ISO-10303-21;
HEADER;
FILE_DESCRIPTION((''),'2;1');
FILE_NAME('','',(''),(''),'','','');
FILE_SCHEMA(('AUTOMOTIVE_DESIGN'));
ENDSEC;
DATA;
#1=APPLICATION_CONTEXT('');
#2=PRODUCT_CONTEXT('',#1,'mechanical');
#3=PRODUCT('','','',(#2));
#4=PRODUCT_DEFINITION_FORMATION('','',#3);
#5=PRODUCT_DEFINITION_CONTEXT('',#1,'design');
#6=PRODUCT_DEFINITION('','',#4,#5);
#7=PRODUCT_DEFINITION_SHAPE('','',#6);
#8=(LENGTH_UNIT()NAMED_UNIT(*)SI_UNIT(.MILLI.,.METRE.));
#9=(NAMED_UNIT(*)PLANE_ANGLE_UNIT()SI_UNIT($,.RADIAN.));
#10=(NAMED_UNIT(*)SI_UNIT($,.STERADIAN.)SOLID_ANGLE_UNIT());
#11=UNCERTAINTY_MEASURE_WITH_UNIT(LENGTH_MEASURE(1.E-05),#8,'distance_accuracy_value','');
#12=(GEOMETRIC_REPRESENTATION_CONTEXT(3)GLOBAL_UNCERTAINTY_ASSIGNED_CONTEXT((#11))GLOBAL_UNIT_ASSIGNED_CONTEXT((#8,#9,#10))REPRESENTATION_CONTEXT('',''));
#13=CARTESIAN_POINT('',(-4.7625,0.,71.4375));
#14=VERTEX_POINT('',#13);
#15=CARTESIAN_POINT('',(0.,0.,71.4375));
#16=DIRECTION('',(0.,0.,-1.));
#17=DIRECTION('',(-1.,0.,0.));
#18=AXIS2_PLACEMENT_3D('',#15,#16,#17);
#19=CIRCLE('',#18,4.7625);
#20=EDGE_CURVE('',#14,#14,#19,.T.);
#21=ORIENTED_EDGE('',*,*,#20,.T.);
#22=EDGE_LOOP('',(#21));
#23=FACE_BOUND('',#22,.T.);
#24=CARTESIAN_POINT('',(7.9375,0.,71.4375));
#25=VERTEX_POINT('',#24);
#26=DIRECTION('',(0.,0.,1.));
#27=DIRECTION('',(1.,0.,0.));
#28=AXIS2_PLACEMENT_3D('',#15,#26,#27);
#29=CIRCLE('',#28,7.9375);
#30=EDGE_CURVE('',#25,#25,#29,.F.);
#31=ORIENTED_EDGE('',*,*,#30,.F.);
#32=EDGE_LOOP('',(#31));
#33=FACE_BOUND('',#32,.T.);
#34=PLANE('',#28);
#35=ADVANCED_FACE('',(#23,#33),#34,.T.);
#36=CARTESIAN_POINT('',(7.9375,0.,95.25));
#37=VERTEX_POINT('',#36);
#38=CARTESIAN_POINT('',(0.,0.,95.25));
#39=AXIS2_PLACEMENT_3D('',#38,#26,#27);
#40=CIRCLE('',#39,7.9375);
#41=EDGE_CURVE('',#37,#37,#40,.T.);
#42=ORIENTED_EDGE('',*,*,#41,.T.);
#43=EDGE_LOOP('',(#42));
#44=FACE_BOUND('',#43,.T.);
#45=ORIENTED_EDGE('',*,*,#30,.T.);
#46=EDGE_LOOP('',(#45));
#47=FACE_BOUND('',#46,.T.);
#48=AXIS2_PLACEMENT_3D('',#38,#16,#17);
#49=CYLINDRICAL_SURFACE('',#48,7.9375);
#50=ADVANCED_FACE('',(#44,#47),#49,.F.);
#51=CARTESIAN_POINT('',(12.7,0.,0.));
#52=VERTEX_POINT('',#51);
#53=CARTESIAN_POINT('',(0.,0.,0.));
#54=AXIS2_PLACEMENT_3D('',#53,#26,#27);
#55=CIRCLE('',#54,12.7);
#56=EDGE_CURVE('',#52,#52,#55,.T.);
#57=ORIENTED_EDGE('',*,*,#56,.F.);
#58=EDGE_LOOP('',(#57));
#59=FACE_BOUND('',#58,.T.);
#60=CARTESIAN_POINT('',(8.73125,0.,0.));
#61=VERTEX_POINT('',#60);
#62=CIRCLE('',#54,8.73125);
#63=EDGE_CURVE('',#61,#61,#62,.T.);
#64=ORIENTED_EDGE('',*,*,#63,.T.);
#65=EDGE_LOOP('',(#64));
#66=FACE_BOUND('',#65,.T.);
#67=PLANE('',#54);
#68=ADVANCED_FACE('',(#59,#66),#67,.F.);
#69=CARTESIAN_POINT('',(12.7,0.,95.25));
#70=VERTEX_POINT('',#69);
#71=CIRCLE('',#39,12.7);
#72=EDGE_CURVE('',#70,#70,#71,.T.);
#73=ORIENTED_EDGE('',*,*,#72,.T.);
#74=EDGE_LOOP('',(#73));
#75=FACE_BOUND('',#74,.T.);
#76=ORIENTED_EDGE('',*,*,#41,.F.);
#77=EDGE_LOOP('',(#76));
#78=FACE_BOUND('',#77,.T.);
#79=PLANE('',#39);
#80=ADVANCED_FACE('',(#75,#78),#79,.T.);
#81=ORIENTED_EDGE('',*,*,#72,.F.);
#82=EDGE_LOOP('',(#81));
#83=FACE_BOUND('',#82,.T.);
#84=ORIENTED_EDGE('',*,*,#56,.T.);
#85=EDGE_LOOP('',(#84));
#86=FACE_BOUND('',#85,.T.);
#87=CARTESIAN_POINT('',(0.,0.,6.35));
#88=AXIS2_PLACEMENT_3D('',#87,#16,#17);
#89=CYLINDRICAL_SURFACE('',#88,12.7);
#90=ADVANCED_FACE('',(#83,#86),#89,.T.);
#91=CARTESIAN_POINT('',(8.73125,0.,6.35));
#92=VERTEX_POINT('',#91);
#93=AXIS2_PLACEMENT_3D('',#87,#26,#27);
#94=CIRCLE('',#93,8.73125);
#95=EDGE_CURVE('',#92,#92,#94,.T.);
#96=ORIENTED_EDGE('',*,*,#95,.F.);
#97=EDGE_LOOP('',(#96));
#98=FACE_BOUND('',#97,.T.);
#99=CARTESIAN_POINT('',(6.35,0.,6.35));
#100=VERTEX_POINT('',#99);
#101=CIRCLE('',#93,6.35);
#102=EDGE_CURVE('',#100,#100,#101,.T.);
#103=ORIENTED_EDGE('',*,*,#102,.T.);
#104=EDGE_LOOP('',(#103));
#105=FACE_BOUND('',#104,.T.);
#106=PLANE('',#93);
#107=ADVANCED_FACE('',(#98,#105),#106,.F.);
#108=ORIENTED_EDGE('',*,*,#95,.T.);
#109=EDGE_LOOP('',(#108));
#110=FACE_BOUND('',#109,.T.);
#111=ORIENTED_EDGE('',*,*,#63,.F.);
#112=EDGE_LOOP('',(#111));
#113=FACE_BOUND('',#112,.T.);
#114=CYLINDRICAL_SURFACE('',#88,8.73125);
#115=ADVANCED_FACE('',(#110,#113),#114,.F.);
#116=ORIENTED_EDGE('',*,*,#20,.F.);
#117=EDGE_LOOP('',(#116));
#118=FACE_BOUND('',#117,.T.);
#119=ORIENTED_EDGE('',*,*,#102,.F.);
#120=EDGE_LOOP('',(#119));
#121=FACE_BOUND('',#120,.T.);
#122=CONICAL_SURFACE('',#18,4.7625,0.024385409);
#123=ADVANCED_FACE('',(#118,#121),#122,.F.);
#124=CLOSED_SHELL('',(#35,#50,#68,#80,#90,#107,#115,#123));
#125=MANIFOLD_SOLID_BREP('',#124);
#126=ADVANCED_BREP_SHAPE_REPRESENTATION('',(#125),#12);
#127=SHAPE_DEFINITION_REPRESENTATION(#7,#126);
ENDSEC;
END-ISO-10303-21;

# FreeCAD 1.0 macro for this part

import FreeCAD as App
import Part
import Sketcher
from FreeCAD import Vector
Q = App.Units.Quantity

doc = App.newDocument("Part")
params = doc.addObject("Spreadsheet::Sheet", "Params")
for row, (alias, value) in enumerate([
    ("sketch1_diameter", "1 in"),
    ("sketch1_diameter2", "0.6875 in"),
    ("pad1_length", "0.25 in"),
    ("sketch2_diameter", "1 in"),
    ("sketch2_diameter2", "0.625 in"),
    ("pad2_length", "0.9375 in"),
    ("sketch3_diameter", "1 in"),
    ("pad3_length", "2.5625 in"),
    ("sketch4_diameter", "0.5 in"),
    ("sketch5_diameter", "0.375 in"),
], start=1):
    params.set(f"A{row}", alias)
    params.set(f"B{row}", "=" + value)
    params.setAlias(f"B{row}", alias)

body = doc.addObject("PartDesign::Body", "Body")

sketch1 = body.newObject("Sketcher::SketchObject", "Sketch")
sketch1.AttachmentSupport = (doc.getObject("XY_Plane"), [""])
sketch1.MapMode = "FlatFace"
sketch1.addGeometry([
    Part.Circle(Vector(0, 0, 0), Vector(0, 0, 1), 13),
    Part.Circle(Vector(0, 0, 0), Vector(0, 0, 1), 9),
], False)
sketch1.addConstraint([
    Sketcher.Constraint("Coincident", 0, 3, -1, 1),
    Sketcher.Constraint("Coincident", 1, 3, -1, 1),
    Sketcher.Constraint("Diameter", 0, Q("1 in")),
    Sketcher.Constraint("Diameter", 1, Q("0.6875 in")),
])
sketch1.setExpression("Constraints[2]", "Params.sketch1_diameter")
sketch1.setExpression("Constraints[3]", "Params.sketch1_diameter2")
pad1 = body.newObject("PartDesign::Pad", "Pad")
pad1.Profile = sketch1
pad1.setExpression("Length", "Params.pad1_length")
body2 = doc.addObject("PartDesign::Body", "Body001")

sketch2 = body2.newObject("Sketcher::SketchObject", "Sketch001")
sketch2.AttachmentSupport = (doc.getObject("XY_Plane001"), [""])
sketch2.MapMode = "FlatFace"
sketch2.AttachmentOffset = App.Placement(Vector(0, 0, 2.8125 * 25.4), App.Rotation())
sketch2.addGeometry([
    Part.Circle(Vector(0, 0, 0), Vector(0, 0, 1), 13),
    Part.Circle(Vector(0, 0, 0), Vector(0, 0, 1), 8),
], False)
sketch2.addConstraint([
    Sketcher.Constraint("Coincident", 0, 3, -1, 1),
    Sketcher.Constraint("Coincident", 1, 3, -1, 1),
    Sketcher.Constraint("Diameter", 0, Q("1 in")),
    Sketcher.Constraint("Diameter", 1, Q("0.625 in")),
])
sketch2.setExpression("Constraints[2]", "Params.sketch2_diameter")
sketch2.setExpression("Constraints[3]", "Params.sketch2_diameter2")
pad2 = body2.newObject("PartDesign::Pad", "Pad001")
pad2.Profile = sketch2
pad2.setExpression("Length", "Params.pad2_length")
body.AllowCompound = True
doc.recompute()

boolean = body.newObject("PartDesign::Boolean", "Boolean")
boolean.Type = "Fuse"
boolean.addObjects([body2])

sketch3 = body.newObject("Sketcher::SketchObject", "Sketch002")
sketch3.AttachmentSupport = (doc.getObject("XY_Plane"), [""])
sketch3.MapMode = "FlatFace"
sketch3.AttachmentOffset = App.Placement(Vector(0, 0, 0.25 * 25.4), App.Rotation())
sketch3.addGeometry(Part.Circle(Vector(0, 0, 0), Vector(0, 0, 1), 13), False)
sketch3.addConstraint([
    Sketcher.Constraint("Coincident", 0, 3, -1, 1),
    Sketcher.Constraint("Diameter", 0, Q("1 in")),
])
sketch3.setExpression("Constraints[1]", "Params.sketch3_diameter")
pad3 = body.newObject("PartDesign::Pad", "Pad002")
pad3.Profile = sketch3
pad3.setExpression("Length", "Params.pad3_length")

sketch4 = body.newObject("Sketcher::SketchObject", "Sketch003")
sketch4.AttachmentSupport = (doc.getObject("XY_Plane"), [""])
sketch4.MapMode = "FlatFace"
sketch4.AttachmentOffset = App.Placement(Vector(0, 0, 0.25 * 25.4), App.Rotation())
sketch4.addGeometry(Part.Circle(Vector(0, 0, 0), Vector(0, 0, 1), 6), False)
sketch4.addConstraint([
    Sketcher.Constraint("Coincident", 0, 3, -1, 1),
    Sketcher.Constraint("Diameter", 0, Q("0.5 in")),
])
sketch4.setExpression("Constraints[1]", "Params.sketch4_diameter")

sketch5 = body.newObject("Sketcher::SketchObject", "Sketch004")
sketch5.AttachmentSupport = (doc.getObject("XY_Plane"), [""])
sketch5.MapMode = "FlatFace"
sketch5.AttachmentOffset = App.Placement(Vector(0, 0, 2.8125 * 25.4), App.Rotation())
sketch5.addGeometry(Part.Circle(Vector(0, 0, 0), Vector(0, 0, 1), 4.8), False)
sketch5.addConstraint([
    Sketcher.Constraint("Coincident", 0, 3, -1, 1),
    Sketcher.Constraint("Diameter", 0, Q("0.375 in")),
])
sketch5.setExpression("Constraints[1]", "Params.sketch5_diameter")

subtractiveloft = body.newObject("PartDesign::SubtractiveLoft", "SubtractiveLoft")
subtractiveloft.Profile = sketch4
subtractiveloft.Sections = [sketch5]

doc.recompute()
